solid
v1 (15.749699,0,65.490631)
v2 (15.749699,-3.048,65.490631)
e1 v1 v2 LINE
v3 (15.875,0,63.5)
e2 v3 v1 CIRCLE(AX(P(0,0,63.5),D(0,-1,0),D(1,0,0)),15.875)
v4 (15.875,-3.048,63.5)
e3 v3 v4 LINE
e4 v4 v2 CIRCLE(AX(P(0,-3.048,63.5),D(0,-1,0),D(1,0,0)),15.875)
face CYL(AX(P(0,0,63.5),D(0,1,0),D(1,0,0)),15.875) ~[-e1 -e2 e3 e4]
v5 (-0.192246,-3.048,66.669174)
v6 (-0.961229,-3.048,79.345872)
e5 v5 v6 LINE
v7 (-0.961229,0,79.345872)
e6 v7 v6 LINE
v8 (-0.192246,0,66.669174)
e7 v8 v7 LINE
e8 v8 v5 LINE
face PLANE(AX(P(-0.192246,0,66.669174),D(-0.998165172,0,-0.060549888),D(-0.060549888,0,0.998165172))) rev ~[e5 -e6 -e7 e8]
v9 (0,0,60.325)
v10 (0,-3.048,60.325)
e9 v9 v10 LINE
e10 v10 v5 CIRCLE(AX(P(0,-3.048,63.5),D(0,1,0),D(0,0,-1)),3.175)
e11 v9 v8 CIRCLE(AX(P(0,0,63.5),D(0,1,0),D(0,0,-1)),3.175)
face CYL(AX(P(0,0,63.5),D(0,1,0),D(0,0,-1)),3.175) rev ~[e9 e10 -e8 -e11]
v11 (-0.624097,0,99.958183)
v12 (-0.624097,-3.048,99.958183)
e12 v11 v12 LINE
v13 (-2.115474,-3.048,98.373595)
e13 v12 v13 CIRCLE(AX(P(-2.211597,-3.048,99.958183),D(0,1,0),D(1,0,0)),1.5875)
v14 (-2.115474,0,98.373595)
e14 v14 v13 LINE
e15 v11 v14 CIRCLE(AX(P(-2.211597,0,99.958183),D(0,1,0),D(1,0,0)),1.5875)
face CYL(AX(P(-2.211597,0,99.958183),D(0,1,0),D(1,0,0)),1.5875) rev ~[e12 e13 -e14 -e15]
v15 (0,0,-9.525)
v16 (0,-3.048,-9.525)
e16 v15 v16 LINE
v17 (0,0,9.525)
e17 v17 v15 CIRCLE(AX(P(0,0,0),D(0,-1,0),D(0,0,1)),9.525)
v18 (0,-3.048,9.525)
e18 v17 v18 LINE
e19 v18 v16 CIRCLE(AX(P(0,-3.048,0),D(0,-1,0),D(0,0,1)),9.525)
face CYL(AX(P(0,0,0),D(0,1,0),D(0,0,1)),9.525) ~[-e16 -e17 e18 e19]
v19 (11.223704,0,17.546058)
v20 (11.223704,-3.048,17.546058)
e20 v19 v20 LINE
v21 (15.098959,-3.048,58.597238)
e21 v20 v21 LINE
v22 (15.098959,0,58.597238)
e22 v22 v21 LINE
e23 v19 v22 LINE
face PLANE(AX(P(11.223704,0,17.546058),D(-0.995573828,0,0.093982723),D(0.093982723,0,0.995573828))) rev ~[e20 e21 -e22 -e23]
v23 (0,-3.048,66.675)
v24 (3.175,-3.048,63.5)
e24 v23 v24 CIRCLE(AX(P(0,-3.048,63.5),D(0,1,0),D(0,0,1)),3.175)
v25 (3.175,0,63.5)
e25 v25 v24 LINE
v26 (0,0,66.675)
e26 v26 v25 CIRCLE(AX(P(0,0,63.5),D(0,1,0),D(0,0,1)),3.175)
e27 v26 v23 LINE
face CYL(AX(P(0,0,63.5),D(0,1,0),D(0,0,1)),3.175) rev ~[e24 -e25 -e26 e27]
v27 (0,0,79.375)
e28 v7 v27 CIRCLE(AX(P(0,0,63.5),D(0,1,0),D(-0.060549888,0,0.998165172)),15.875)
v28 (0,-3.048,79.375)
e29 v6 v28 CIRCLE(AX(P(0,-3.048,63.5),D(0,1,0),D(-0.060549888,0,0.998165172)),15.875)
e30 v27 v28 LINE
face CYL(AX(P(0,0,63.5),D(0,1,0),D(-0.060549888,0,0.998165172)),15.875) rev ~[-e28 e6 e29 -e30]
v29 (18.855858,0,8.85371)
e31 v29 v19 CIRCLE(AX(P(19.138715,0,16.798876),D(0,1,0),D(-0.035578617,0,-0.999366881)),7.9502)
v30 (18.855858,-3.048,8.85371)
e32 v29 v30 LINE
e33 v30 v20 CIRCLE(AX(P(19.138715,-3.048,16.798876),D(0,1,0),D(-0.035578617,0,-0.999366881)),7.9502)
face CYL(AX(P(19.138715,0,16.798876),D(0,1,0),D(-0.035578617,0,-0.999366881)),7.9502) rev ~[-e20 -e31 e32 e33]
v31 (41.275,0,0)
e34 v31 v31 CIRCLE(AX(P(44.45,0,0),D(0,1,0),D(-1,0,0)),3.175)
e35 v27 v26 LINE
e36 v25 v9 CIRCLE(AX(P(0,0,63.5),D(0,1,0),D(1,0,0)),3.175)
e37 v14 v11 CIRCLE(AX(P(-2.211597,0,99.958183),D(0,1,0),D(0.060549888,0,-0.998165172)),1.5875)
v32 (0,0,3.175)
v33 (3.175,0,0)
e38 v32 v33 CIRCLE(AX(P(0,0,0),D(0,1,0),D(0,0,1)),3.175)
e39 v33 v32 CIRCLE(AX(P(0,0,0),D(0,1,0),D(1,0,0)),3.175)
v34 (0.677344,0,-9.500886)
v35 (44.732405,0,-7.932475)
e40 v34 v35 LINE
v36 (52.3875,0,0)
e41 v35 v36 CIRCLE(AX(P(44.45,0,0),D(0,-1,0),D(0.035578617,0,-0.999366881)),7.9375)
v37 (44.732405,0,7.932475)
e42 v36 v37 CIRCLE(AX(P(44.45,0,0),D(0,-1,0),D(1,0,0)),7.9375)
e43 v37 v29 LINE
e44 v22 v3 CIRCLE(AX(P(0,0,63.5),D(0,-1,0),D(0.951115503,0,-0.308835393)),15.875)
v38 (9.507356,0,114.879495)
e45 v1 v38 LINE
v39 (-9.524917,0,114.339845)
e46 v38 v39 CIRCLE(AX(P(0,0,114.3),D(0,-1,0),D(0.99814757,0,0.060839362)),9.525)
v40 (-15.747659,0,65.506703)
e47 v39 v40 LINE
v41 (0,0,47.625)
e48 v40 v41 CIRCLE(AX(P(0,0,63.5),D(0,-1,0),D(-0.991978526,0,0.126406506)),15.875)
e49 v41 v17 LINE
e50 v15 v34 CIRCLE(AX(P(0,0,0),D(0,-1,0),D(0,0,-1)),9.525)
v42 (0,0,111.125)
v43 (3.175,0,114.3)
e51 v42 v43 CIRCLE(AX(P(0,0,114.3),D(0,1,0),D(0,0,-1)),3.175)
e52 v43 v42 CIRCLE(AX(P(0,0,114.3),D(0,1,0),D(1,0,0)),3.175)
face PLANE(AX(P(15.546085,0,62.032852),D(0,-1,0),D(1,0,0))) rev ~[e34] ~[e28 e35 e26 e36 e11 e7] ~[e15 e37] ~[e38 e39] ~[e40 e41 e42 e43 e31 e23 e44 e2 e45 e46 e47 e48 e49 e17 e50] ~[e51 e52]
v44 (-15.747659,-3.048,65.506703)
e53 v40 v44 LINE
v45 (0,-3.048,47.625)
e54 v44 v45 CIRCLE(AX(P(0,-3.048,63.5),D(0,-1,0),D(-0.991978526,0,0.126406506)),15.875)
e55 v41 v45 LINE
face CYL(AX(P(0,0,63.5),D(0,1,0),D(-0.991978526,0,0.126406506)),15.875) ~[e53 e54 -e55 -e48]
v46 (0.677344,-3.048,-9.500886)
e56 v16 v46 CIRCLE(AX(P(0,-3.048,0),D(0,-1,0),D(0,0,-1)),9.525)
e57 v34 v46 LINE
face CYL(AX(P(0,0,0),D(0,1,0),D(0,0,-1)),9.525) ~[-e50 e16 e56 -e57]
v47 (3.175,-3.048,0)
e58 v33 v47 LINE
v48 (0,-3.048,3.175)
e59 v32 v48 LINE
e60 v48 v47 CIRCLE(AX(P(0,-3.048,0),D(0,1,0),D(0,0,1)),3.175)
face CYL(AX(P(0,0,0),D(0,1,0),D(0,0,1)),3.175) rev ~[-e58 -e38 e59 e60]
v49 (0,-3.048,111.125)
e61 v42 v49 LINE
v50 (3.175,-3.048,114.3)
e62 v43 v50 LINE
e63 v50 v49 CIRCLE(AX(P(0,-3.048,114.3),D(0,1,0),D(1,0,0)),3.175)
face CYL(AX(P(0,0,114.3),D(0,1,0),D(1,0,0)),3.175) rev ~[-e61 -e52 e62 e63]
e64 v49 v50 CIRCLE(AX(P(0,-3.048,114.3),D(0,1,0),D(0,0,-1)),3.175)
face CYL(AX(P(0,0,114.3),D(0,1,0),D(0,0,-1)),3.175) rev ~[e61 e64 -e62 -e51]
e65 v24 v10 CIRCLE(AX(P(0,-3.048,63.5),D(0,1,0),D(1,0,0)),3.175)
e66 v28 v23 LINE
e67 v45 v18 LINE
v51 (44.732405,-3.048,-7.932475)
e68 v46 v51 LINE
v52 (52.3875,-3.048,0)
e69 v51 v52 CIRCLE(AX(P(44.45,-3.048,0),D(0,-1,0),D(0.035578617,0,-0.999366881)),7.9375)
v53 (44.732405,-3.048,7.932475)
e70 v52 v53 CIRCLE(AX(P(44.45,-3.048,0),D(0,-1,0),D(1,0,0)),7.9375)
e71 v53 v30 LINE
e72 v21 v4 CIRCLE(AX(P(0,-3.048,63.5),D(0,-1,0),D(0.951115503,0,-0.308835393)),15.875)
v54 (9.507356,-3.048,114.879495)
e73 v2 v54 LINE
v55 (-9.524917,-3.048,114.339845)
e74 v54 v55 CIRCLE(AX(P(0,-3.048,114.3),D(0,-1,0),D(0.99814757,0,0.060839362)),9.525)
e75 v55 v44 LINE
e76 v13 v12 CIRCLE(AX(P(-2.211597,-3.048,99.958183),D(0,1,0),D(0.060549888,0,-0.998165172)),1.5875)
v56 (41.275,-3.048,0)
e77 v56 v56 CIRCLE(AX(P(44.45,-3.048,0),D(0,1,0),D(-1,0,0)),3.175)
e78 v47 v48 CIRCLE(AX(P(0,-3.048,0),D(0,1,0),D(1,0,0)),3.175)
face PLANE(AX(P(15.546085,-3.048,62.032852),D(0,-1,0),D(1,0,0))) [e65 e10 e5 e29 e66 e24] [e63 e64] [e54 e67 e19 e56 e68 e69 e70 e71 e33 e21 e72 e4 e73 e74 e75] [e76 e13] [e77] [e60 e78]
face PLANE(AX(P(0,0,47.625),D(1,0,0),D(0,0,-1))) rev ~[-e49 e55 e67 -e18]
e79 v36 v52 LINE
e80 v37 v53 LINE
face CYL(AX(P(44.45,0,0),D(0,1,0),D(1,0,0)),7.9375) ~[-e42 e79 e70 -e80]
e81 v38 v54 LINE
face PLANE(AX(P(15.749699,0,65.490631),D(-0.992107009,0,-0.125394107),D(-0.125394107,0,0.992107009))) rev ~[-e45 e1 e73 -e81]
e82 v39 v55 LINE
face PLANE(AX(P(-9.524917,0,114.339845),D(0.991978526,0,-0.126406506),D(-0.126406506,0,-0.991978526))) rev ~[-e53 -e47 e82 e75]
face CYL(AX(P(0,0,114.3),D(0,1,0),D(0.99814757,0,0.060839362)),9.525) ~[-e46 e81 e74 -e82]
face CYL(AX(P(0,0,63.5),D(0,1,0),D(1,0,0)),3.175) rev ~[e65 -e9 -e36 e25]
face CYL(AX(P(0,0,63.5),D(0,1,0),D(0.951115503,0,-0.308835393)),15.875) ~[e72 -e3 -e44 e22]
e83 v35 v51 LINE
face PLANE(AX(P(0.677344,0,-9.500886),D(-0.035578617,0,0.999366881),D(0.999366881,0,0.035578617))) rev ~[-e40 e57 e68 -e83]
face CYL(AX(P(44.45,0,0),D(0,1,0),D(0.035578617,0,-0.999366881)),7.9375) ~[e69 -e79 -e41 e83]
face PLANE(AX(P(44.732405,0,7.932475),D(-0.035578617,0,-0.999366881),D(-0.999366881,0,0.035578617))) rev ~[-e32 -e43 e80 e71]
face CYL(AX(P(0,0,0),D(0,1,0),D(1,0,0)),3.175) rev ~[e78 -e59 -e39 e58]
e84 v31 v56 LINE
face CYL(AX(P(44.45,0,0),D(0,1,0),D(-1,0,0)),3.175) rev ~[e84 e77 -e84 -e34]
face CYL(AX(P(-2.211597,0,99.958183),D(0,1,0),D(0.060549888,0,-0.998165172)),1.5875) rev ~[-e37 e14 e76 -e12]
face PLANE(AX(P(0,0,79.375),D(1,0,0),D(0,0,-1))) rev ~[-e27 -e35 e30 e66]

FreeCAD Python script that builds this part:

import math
import FreeCAD as App
import Part
import Sketcher
from FreeCAD import Vector
Q = App.Units.Quantity

doc = App.newDocument("Part")
params = doc.addObject("Spreadsheet::Sheet", "Params")
for row, (alias, value) in enumerate([
    ("sketch1_diameter", "0.25 in"),
    ("sketch1_height", "1.5 in"),
    ("sketch1_height2", "0.5 in"),
    ("sketch1_radius", "0.375 in"),
    ("sketch1_radius2", "0.3125 in"),
    ("pad1_length", "0.12 in"),
], start=1):
    params.set(f"A{row}", alias)
    params.set(f"B{row}", "=" + value)
    params.setAlias(f"B{row}", alias)

body = doc.addObject("PartDesign::Body", "Body")

sketch1 = body.newObject("Sketcher::SketchObject", "Sketch")
sketch1.AttachmentSupport = (doc.getObject("XZ_Plane"), [""])
sketch1.MapMode = "FlatFace"
sketch1.addGeometry([
    Part.ArcOfCircle(Part.Circle(Vector(0, 63.5, 0), Vector(0, 0, 1), 15.875), math.radians(-17.98906), math.radians(0)),
    Part.ArcOfCircle(Part.Circle(Vector(0, 63.5, 0), Vector(0, 0, 1), 15.875), math.radians(0), math.radians(7.203516)),
    Part.LineSegment(Vector(15.749699, 65.490631, 0), Vector(9.507356, 114.879495, 0)),
    Part.ArcOfCircle(Part.Circle(Vector(0, 114.3, 0), Vector(0, 0, 1), 9.525), math.radians(3.487993), math.radians(179.760316)),
    Part.LineSegment(Vector(-9.524917, 114.339845, 0), Vector(-15.747659, 65.506703, 0)),
    Part.ArcOfCircle(Part.Circle(Vector(0, 63.5, 0), Vector(0, 0, 1), 15.875), math.radians(172.738013), math.radians(270)),
    Part.LineSegment(Vector(0, 47.625, 0), Vector(0, 9.525, 0)),
    Part.ArcOfCircle(Part.Circle(Vector(0, 0, 0), Vector(0, 0, 1), 9.525), math.radians(90), math.radians(270)),
    Part.ArcOfCircle(Part.Circle(Vector(0, 0, 0), Vector(0, 0, 1), 9.525), math.radians(-90), math.radians(-85.92213)),
    Part.LineSegment(Vector(0.677344, -9.500886, 0), Vector(44.732405, -7.932475, 0)),
    Part.ArcOfCircle(Part.Circle(Vector(44.45, 0, 0), Vector(0, 0, 1), 7.9375), math.radians(-87.961065), math.radians(0)),
    Part.ArcOfCircle(Part.Circle(Vector(44.45, 0, 0), Vector(0, 0, 1), 7.9375), math.radians(0), math.radians(87.961065)),
    Part.LineSegment(Vector(44.732405, 7.932475, 0), Vector(18.855858, 8.85371, 0)),
    Part.ArcOfCircle(Part.Circle(Vector(19.138715, 16.798876, 0), Vector(0, 0, 1), 7.9502), math.radians(174.607228), math.radians(267.961065)),
    Part.LineSegment(Vector(11.223704, 17.546058, 0), Vector(15.098959, 58.597238, 0)),
    Part.ArcOfCircle(Part.Circle(Vector(0, 0, 0), Vector(0, 0, 1), 3.175), math.radians(0), math.radians(90)),
    Part.ArcOfCircle(Part.Circle(Vector(0, 0, 0), Vector(0, 0, 1), 3.175), math.radians(90), math.radians(360)),
    Part.Circle(Vector(44.45, 0, 0), Vector(0, 0, 1), 3.175),
    Part.ArcOfCircle(Part.Circle(Vector(0, 63.5, 0), Vector(0, 0, 1), 15.875), math.radians(90), math.radians(93.471376)),
    Part.LineSegment(Vector(0, 79.375, 0), Vector(0, 66.675, 0)),
    Part.ArcOfCircle(Part.Circle(Vector(0, 63.5, 0), Vector(0, 0, 1), 3.175), math.radians(0), math.radians(90)),
    Part.ArcOfCircle(Part.Circle(Vector(0, 63.5, 0), Vector(0, 0, 1), 3.175), math.radians(-90), math.radians(0)),
    Part.ArcOfCircle(Part.Circle(Vector(0, 63.5, 0), Vector(0, 0, 1), 3.175), math.radians(93.471376), math.radians(270)),
    Part.LineSegment(Vector(-0.192246, 66.669174, 0), Vector(-0.961229, 79.345872, 0)),
    Part.ArcOfCircle(Part.Circle(Vector(-2.211597, 99.958183, 0), Vector(0, 0, 1), 1.5875), math.radians(0), math.radians(273.471376)),
    Part.ArcOfCircle(Part.Circle(Vector(-2.211597, 99.958183, 0), Vector(0, 0, 1), 1.5875), math.radians(-86.528624), math.radians(0)),
    Part.ArcOfCircle(Part.Circle(Vector(0, 114.3, 0), Vector(0, 0, 1), 3.175), math.radians(0), math.radians(270)),
    Part.ArcOfCircle(Part.Circle(Vector(0, 114.3, 0), Vector(0, 0, 1), 3.175), math.radians(-90), math.radians(0)),
], False)
sketch1.addConstraint([
    Sketcher.Constraint("Tangent", 0, 2, 1, 1),
    Sketcher.Constraint("Tangent", 1, 2, 2, 1),
    Sketcher.Constraint("Coincident", 2, 2, 3, 1),
    Sketcher.Constraint("Coincident", 3, 2, 4, 1),
    Sketcher.Constraint("Tangent", 4, 2, 5, 1),
    Sketcher.Constraint("Coincident", 5, 2, 6, 1),
    Sketcher.Constraint("Coincident", 6, 2, 7, 1),
    Sketcher.Constraint("Tangent", 7, 2, 8, 1),
    Sketcher.Constraint("Coincident", 8, 2, 9, 1),
    Sketcher.Constraint("Tangent", 9, 2, 10, 1),
    Sketcher.Constraint("Tangent", 10, 2, 11, 1),
    Sketcher.Constraint("Tangent", 11, 2, 12, 1),
    Sketcher.Constraint("Tangent", 12, 2, 13, 2),
    Sketcher.Constraint("Tangent", 13, 1, 14, 1),
    Sketcher.Constraint("Coincident", 14, 2, 0, 1),
    Sketcher.Constraint("Tangent", 15, 1, 16, 2),
    Sketcher.Constraint("Coincident", 16, 1, 15, 2),
    Sketcher.Constraint("Coincident", 18, 1, 19, 1),
    Sketcher.Constraint("Coincident", 19, 2, 20, 2),
    Sketcher.Constraint("Tangent", 20, 1, 21, 2),
    Sketcher.Constraint("Tangent", 21, 1, 22, 2),
    Sketcher.Constraint("Coincident", 22, 1, 23, 1),
    Sketcher.Constraint("Coincident", 23, 2, 18, 2),
    Sketcher.Constraint("Tangent", 24, 1, 25, 2),
    Sketcher.Constraint("Coincident", 25, 1, 24, 2),
    Sketcher.Constraint("Tangent", 26, 1, 27, 2),
    Sketcher.Constraint("Coincident", 27, 1, 26, 2),
    Sketcher.Constraint("Vertical", 6),
    Sketcher.Constraint("Vertical", 19),
    Sketcher.Constraint("Coincident", 7, 3, -1, 1),
    Sketcher.Constraint("Coincident", 15, 3, -1, 1),
    Sketcher.Constraint("Coincident", 5, 3, 0, 3),
    Sketcher.Constraint("Coincident", 17, 3, 10, 3),
    Sketcher.Constraint("Coincident", 18, 3, 0, 3),
    Sketcher.Constraint("Coincident", 20, 3, 0, 3),
    Sketcher.Constraint("Coincident", 22, 3, 0, 3),
    Sketcher.Constraint("Coincident", 26, 3, 3, 3),
    Sketcher.Constraint("Equal", 0, 1),
    Sketcher.Constraint("Equal", 1, 5),
    Sketcher.Constraint("Equal", 3, 7),
    Sketcher.Constraint("Equal", 7, 8),
    Sketcher.Constraint("Equal", 10, 11),
    Sketcher.Constraint("Equal", 16, 17),
    Sketcher.Constraint("Equal", 5, 18),
    Sketcher.Constraint("Equal", 17, 20),
    Sketcher.Constraint("Equal", 22, 26),
    Sketcher.Constraint("Symmetric", 9, 2, 11, 2, -1),
    Sketcher.Constraint("PointOnObject", 0, 3, -2),
    Sketcher.Constraint("PointOnObject", 3, 3, -2),
    Sketcher.Constraint("PointOnObject", 5, 2, -2),
    Sketcher.Constraint("PointOnObject", 7, 2, -2),
    Sketcher.Constraint("PointOnObject", 10, 2, -1),
    Sketcher.Constraint("PointOnObject", 15, 1, -1),
    Sketcher.Constraint("PointOnObject", 16, 1, -2),
    Sketcher.Constraint("PointOnObject", 18, 1, -2),
    Sketcher.Constraint("PointOnObject", 21, 1, -2),
    Sketcher.Constraint("PointOnObject", 27, 1, -2),
    Sketcher.Constraint("Horizontal", 22, 3, 0, 2),
    Sketcher.Constraint("Horizontal", 0, 2, 20, 1),
    Sketcher.Constraint("Horizontal", 25, 3, 24, 1),
    Sketcher.Constraint("Horizontal", 27, 3, 26, 1),
    Sketcher.Constraint("Diameter", 17, Q("0.25 in")),
    Sketcher.Constraint("DistanceY", 6, 2, 6, 1, Q("1.5 in")),
    Sketcher.Constraint("DistanceY", 19, 2, 19, 1, Q("0.5 in")),
    Sketcher.Constraint("Radius", 3, Q("0.375 in")),
    Sketcher.Constraint("Radius", 10, Q("0.3125 in")),
    Sketcher.Constraint("Radius", 13, Q("0.313 in")),
    Sketcher.Constraint("Radius", 24, Q("0.0625 in")),
    Sketcher.Constraint("DistanceY", 0, 3, 3, 3, Q("2 in")),
    Sketcher.Constraint("DistanceX", -1, 1, 10, 3, Q("1.75 in")),
    Sketcher.Constraint("Distance", 2, 49.781791),
    Sketcher.Constraint("Distance", 9, 44.082972),
    Sketcher.Constraint("Distance", 12, 25.89294),
    Sketcher.Constraint("DistanceX", 4, 2, -1, 1, 15.747659),
    Sketcher.Constraint("DistanceX", -1, 1, 14, 2, 15.098959),
    Sketcher.Constraint("DistanceX", 23, 2, -1, 1, 0.961229),
    Sketcher.Constraint("DistanceX", 3, 2, 24, 3, 7.31332),
    Sketcher.Constraint("DistanceY", -1, 1, 24, 3, 99.958183),
    Sketcher.Constraint("DistanceX", 22, 1, -1, 1, 0.192246),
    Sketcher.Constraint("DistanceX", 25, 1, -1, 1, 2.115474),
])
sketch1.setExpression("Constraints[61]", "Params.sketch1_diameter")
sketch1.setExpression("Constraints[62]", "Params.sketch1_height")
sketch1.setExpression("Constraints[63]", "Params.sketch1_height2")
sketch1.setExpression("Constraints[64]", "Params.sketch1_radius")
sketch1.setExpression("Constraints[65]", "Params.sketch1_radius2")
pad1 = body.newObject("PartDesign::Pad", "Pad")
pad1.Profile = sketch1
pad1.setExpression("Length", "Params.pad1_length")

doc.recompute()
